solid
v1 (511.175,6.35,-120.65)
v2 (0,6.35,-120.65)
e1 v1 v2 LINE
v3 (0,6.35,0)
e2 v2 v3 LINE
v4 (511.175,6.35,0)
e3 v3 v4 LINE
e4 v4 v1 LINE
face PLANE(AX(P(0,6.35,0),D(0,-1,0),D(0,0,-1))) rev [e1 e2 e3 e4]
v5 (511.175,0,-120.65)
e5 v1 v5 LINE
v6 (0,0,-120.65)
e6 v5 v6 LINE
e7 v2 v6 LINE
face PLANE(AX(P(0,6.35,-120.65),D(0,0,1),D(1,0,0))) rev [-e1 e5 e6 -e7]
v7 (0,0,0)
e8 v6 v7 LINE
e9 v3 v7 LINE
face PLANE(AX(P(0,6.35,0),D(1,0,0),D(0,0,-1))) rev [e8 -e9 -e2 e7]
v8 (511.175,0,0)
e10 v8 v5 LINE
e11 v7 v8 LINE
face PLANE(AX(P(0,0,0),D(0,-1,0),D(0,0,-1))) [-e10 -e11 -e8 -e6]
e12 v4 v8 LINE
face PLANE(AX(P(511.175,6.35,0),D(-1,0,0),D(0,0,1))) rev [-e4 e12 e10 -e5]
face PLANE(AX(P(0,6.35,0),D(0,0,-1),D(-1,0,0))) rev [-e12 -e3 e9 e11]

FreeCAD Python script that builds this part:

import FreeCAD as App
import Part
import Sketcher
from FreeCAD import Vector
Q = App.Units.Quantity

doc = App.newDocument("Part")
body = doc.addObject("PartDesign::Body", "Body")

# Sketch on XZ plane
sketch1 = body.newObject("Sketcher::SketchObject", "Sketch")
sketch1.AttachmentSupport = (doc.getObject("XZ_Plane"), [""])
sketch1.MapMode = "FlatFace"
sketch1.addGeometry([
    Part.LineSegment(Vector(0, -121, 0), Vector(0, 0, 0)),
    Part.LineSegment(Vector(0, 0, 0), Vector(511, 0, 0)),
    Part.LineSegment(Vector(511, 0, 0), Vector(511, -121, 0)),
    Part.LineSegment(Vector(511, -121, 0), Vector(0, -121, 0)),
], False)
sketch1.addConstraint([
    Sketcher.Constraint("Coincident", 0, 2, 1, 1),
    Sketcher.Constraint("Coincident", 1, 2, 2, 1),
    Sketcher.Constraint("Coincident", 2, 2, 3, 1),
    Sketcher.Constraint("Coincident", 3, 2, 0, 1),
    Sketcher.Constraint("Vertical", 0),
    Sketcher.Constraint("Horizontal", 1),
    Sketcher.Constraint("Vertical", 2),
    Sketcher.Constraint("Horizontal", 3),
    Sketcher.Constraint("Coincident", 0, 2, -1, 1),
    Sketcher.Constraint("DistanceY", 0, 1, 0, 2, Q("4.75 in")),
    Sketcher.Constraint("DistanceX", 1, 1, 1, 2, Q("20.125 in")),
])
pad1 = body.newObject("PartDesign::Pad", "Pad")
pad1.Profile = sketch1
pad1.Length = Q("0.25 in")
pad1.Reversed = True

doc.recompute()
